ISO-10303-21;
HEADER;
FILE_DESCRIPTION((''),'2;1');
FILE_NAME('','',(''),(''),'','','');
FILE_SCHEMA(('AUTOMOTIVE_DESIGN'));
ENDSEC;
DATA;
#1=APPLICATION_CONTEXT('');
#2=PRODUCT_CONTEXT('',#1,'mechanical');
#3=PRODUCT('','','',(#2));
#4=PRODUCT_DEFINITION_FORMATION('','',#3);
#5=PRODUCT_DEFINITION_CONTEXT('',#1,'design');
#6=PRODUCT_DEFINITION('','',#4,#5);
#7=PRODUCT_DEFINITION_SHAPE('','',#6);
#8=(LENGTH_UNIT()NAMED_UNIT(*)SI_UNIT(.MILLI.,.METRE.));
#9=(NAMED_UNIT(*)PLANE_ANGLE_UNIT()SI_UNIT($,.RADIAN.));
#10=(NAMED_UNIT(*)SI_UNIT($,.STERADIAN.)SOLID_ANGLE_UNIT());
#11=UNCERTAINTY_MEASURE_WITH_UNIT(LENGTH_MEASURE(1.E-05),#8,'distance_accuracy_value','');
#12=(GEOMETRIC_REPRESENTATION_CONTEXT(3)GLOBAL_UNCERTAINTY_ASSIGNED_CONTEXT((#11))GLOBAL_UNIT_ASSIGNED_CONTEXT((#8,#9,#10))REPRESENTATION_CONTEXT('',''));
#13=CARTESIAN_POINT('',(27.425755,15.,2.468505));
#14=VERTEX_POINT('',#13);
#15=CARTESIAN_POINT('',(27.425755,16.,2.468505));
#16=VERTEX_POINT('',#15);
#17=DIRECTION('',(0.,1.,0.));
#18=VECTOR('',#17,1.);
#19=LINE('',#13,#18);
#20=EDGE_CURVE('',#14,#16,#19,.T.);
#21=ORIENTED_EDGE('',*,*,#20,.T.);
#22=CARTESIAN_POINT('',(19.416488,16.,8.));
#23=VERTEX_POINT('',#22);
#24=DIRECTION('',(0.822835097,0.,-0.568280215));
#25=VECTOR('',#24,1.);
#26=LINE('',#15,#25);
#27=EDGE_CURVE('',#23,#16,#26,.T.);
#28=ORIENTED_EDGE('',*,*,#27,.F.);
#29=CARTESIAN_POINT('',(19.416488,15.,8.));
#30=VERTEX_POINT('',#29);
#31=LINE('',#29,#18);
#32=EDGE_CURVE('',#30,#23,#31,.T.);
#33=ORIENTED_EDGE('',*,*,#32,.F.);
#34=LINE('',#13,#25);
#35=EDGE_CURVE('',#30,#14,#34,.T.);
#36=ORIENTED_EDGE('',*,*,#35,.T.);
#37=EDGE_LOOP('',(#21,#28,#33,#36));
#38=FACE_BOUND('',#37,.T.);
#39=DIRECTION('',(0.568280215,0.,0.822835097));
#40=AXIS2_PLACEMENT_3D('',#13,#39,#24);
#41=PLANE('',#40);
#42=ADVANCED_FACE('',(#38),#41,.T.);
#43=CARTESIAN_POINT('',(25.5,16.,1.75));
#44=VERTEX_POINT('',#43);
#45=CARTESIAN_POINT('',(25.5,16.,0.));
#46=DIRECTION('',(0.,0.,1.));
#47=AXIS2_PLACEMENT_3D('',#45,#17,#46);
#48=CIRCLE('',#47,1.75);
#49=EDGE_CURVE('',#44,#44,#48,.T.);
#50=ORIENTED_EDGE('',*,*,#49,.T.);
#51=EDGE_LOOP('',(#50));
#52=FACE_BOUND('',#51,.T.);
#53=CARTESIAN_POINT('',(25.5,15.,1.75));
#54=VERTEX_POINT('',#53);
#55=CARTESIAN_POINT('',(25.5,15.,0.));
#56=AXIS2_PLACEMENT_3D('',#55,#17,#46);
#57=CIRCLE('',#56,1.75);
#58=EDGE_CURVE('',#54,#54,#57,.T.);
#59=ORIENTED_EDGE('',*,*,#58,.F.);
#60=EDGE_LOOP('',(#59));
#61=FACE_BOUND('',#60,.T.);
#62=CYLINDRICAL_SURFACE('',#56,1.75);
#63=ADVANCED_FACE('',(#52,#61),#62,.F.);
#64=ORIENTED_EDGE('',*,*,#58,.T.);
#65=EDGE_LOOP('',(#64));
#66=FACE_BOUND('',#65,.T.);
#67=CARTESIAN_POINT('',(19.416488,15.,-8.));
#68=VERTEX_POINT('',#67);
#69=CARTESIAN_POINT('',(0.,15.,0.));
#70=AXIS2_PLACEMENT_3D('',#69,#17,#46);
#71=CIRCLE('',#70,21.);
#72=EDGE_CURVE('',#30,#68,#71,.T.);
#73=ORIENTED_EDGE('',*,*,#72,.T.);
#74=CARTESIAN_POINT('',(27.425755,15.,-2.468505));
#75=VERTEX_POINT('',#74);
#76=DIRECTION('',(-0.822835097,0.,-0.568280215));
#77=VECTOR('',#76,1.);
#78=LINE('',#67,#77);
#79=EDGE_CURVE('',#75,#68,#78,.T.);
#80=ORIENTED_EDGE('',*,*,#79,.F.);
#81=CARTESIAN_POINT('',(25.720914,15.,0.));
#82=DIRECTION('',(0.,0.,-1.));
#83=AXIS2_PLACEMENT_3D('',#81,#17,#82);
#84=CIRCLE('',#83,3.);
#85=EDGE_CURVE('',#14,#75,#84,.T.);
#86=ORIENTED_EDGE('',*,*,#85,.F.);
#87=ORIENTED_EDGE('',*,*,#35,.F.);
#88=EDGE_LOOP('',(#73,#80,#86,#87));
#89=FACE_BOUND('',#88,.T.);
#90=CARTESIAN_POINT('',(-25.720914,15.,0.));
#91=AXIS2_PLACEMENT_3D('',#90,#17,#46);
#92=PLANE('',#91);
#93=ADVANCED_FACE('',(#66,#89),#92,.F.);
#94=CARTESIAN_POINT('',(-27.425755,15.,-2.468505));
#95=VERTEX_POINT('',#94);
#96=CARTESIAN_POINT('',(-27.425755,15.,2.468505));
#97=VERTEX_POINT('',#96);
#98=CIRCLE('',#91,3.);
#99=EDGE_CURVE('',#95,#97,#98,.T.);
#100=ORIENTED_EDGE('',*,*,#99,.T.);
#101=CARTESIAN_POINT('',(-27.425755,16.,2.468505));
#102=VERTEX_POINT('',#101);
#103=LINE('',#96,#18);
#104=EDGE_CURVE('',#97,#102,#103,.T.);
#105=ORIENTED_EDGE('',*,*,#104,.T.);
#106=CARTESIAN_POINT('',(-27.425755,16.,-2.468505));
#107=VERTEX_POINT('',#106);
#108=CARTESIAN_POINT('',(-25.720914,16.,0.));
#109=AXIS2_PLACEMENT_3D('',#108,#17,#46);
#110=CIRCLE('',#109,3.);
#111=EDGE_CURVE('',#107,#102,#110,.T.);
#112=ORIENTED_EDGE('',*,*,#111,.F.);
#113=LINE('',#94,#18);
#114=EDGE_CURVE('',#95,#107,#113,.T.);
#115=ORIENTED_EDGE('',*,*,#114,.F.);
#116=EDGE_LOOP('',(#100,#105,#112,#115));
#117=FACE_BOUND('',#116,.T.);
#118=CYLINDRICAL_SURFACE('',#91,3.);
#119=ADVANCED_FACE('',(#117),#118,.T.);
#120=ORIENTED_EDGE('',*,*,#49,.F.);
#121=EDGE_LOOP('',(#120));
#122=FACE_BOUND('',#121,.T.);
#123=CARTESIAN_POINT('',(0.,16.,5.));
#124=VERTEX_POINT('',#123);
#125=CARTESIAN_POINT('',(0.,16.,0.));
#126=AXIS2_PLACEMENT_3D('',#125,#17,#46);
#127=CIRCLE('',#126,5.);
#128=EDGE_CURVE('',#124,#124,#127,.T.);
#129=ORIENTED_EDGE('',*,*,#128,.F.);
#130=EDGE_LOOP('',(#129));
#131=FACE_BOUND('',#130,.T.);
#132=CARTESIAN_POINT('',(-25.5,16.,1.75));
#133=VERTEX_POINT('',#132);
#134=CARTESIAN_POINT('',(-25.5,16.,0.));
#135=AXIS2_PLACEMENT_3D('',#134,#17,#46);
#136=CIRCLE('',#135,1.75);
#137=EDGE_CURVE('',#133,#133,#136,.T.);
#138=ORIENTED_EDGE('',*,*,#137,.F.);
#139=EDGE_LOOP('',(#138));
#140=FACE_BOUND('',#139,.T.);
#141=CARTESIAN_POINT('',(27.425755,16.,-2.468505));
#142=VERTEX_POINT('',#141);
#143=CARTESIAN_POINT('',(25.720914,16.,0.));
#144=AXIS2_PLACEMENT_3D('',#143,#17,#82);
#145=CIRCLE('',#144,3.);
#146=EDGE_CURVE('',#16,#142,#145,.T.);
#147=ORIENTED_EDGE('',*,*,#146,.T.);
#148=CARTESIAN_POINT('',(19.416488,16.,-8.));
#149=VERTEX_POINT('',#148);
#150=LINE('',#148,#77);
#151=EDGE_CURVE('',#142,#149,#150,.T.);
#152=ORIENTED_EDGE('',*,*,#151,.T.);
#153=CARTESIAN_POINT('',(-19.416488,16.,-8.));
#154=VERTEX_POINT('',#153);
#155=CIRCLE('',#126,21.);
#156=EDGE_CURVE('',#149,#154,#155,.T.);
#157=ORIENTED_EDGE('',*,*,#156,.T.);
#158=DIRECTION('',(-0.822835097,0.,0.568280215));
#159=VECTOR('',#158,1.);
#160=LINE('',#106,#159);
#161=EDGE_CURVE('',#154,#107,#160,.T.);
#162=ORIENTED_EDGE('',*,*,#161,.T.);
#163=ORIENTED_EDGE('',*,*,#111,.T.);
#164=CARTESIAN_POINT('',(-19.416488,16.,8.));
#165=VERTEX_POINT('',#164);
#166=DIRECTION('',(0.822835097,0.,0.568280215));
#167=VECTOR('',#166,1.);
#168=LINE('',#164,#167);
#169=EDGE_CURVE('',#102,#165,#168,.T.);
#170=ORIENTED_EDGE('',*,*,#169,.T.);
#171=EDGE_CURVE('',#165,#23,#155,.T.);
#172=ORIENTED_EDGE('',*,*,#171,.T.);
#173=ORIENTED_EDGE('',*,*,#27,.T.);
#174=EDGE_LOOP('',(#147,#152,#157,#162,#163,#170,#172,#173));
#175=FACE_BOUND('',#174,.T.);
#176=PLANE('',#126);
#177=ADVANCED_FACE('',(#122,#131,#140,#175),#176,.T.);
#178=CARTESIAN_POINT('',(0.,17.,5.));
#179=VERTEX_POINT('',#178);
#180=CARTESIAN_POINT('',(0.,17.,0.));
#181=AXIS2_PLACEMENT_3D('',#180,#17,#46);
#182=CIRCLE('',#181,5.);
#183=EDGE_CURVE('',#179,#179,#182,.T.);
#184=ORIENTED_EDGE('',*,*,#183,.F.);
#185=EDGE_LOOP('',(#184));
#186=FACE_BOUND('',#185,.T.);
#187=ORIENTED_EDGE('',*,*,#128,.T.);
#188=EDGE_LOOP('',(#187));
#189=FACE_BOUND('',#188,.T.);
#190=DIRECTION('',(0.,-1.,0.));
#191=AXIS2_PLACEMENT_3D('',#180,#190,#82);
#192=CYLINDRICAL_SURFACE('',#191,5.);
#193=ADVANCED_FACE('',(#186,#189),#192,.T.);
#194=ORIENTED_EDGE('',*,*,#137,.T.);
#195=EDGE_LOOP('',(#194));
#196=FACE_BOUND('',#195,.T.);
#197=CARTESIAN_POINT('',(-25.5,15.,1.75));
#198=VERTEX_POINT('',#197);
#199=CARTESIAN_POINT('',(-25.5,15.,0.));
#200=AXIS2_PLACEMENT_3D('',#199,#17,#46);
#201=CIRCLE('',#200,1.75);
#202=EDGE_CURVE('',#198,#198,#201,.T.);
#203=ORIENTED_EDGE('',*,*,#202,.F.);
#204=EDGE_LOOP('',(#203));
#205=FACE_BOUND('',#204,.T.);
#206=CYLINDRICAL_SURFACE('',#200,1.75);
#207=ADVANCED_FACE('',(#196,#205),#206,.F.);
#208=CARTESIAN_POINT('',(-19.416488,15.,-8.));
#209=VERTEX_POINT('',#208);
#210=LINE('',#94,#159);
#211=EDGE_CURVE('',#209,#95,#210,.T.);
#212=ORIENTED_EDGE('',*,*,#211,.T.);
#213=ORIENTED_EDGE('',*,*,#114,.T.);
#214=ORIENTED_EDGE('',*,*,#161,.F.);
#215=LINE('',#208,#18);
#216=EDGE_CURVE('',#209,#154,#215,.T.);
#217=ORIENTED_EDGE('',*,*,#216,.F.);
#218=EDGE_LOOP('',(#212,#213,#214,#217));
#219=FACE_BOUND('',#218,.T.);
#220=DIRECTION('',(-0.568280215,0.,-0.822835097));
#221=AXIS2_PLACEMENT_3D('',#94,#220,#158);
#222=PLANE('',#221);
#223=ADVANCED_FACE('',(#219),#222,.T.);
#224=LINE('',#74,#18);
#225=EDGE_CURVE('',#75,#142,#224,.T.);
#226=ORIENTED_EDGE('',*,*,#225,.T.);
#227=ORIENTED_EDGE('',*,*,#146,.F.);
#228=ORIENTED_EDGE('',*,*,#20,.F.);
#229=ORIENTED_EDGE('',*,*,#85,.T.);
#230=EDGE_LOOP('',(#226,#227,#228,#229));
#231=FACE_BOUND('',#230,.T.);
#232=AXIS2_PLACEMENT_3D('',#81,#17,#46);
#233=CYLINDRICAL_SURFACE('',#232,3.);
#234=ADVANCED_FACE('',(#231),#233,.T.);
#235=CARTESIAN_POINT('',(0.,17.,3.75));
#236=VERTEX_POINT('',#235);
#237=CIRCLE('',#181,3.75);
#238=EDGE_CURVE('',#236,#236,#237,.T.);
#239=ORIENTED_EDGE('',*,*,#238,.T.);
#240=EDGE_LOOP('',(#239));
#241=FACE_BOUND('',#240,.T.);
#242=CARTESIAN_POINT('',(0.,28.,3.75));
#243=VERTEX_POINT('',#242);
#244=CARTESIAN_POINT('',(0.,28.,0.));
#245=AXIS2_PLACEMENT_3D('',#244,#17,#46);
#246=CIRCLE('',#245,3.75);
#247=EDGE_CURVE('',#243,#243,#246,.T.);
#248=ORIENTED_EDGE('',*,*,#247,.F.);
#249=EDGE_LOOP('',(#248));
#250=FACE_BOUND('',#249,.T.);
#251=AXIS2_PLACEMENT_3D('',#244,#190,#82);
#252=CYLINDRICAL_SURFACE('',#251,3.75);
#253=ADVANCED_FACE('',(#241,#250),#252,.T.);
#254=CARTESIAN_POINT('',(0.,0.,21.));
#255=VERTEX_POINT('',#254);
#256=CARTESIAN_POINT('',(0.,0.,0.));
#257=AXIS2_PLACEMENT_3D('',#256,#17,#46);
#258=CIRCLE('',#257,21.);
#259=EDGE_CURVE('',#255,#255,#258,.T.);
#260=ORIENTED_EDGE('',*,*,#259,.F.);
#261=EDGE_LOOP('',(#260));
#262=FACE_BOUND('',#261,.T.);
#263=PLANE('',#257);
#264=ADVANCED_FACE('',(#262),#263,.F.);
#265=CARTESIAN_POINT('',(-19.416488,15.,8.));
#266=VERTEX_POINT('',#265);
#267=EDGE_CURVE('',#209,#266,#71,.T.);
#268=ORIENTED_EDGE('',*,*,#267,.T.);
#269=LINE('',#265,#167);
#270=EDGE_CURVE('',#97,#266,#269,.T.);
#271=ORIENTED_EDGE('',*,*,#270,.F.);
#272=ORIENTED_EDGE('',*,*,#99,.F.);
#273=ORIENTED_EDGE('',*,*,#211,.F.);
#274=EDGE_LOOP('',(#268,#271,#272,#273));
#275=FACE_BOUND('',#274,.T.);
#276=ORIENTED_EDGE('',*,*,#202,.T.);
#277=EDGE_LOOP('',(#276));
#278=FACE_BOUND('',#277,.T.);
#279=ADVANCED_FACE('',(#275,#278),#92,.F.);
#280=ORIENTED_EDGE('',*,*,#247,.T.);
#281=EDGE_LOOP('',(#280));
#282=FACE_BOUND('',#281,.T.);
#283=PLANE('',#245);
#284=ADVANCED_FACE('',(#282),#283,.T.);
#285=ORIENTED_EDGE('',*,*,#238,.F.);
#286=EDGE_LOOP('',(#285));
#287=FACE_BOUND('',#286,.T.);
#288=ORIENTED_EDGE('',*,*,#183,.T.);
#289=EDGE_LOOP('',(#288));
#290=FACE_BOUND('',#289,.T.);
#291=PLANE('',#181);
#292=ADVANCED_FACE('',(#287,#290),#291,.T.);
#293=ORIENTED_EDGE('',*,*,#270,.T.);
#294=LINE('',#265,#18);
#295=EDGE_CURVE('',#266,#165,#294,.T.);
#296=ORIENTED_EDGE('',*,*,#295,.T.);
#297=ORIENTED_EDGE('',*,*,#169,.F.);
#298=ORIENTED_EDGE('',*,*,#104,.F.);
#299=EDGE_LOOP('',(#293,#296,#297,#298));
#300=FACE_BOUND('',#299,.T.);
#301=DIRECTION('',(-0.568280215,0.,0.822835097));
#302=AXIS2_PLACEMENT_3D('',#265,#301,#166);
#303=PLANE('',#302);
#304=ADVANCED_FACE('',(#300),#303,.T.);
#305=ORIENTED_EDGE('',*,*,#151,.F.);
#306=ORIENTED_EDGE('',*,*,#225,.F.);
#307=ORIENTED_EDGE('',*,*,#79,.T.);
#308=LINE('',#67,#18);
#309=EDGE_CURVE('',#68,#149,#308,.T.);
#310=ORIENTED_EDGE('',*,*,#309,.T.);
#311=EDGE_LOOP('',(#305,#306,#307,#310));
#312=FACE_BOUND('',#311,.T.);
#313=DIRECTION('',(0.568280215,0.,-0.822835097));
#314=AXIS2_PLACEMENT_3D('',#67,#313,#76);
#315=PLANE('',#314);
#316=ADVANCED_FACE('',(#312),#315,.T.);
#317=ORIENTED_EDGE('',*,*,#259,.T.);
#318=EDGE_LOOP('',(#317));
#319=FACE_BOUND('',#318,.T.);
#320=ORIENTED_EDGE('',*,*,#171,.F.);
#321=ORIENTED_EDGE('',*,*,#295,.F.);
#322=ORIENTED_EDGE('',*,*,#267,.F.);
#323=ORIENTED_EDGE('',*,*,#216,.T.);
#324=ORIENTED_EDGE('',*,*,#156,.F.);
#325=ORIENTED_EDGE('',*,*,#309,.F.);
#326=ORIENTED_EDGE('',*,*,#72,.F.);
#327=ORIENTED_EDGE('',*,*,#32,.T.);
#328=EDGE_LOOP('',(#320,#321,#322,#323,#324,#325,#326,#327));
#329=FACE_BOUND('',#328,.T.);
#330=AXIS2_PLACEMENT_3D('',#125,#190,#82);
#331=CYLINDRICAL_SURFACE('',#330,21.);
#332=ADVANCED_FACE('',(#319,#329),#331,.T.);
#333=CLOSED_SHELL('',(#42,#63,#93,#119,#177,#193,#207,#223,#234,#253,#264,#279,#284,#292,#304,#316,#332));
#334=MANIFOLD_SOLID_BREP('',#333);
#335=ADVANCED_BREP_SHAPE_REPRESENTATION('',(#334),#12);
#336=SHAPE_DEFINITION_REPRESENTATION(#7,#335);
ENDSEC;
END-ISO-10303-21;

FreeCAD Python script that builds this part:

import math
import FreeCAD as App
import Part
import Sketcher

V = App.Vector

doc = App.newDocument("Part")
body = doc.addObject("PartDesign::Body", "Body")

sketch1 = body.newObject("Sketcher::SketchObject", "Sketch")
sketch1.AttachmentSupport = (doc.getObject("XZ_Plane"), [""])
sketch1.MapMode = "FlatFace"
sketch1.addGeometry(Part.Circle(V(0, 0, 0), V(0, 0, 1), 21), False)
sketch1.addConstraint([
    Sketcher.Constraint("Coincident", 0, 3, -1, 1),
    Sketcher.Constraint("Diameter", 0, 42.0),
])
pad1 = body.newObject("PartDesign::Pad", "Pad")
pad1.Profile = sketch1
pad1.Length = 16
pad1.Reversed = True

sketch2 = body.newObject("Sketcher::SketchObject", "Sketch001")
sketch2.AttachmentSupport = (doc.getObject("XZ_Plane"), [""])
sketch2.MapMode = "FlatFace"
sketch2.AttachmentOffset = App.Placement(V(0, 0, -16), App.Rotation())
sketch2.addGeometry([
    Part.LineSegment(V(-27.4, 2.5, 0), V(-19.4, 8, 0)),
    Part.LineSegment(V(-19.4, 8, 0), V(19.4, 8, 0)),
    Part.LineSegment(V(19.4, 8, 0), V(27.4, 2.5, 0)),
    Part.ArcOfCircle(Part.Circle(V(25.7, 0, 0), V(0, 0, 1), 3), math.radians(-55), math.radians(55)),
    Part.LineSegment(V(27.4, -2.5, 0), V(19.4, -8, 0)),
    Part.LineSegment(V(19.4, -8, 0), V(-19.4, -8, 0)),
    Part.LineSegment(V(-19.4, -8, 0), V(-27.4, -2.5, 0)),
    Part.ArcOfCircle(Part.Circle(V(-25.7, 0, 0), V(0, 0, 1), 3), math.radians(125), math.radians(235)),
    Part.Circle(V(-25.5, 0, 0), V(0, 0, 1), 1.8),
    Part.Circle(V(25.5, 0, 0), V(0, 0, 1), 1.8),
], False)
sketch2.addConstraint([
    Sketcher.Constraint("Coincident", 0, 2, 1, 1),
    Sketcher.Constraint("Coincident", 1, 2, 2, 1),
    Sketcher.Constraint("Tangent", 2, 2, 3, 2),
    Sketcher.Constraint("Tangent", 3, 1, 4, 1),
    Sketcher.Constraint("Coincident", 4, 2, 5, 1),
    Sketcher.Constraint("Coincident", 5, 2, 6, 1),
    Sketcher.Constraint("Tangent", 6, 2, 7, 2),
    Sketcher.Constraint("Tangent", 7, 1, 0, 1),
    Sketcher.Constraint("Horizontal", 1),
    Sketcher.Constraint("Horizontal", 5),
    Sketcher.Constraint("Equal", 3, 7),
    Sketcher.Constraint("Equal", 8, 9),
    Sketcher.Constraint("Symmetric", 3, 3, 7, 3, -1, 1),
    Sketcher.Constraint("Symmetric", 8, 3, 9, 3, -1, 1),
    Sketcher.Constraint("Symmetric", 0, 2, 4, 2, -1, 1),
    Sketcher.Constraint("Symmetric", 3, 1, 6, 2, -2),
    Sketcher.Constraint("PointOnObject", 8, 3, -1),
    Sketcher.Constraint("Parallel", 2, 6),
    Sketcher.Constraint("Radius", 3, 3.0),
    Sketcher.Constraint("Diameter", 8, 3.5),
    Sketcher.Constraint("DistanceY", -1, 1, 0, 2, 8.0),
    Sketcher.Constraint("DistanceX", 8, 3, 9, 3, 51.0),
    Sketcher.Constraint("DistanceX", 1, 1, 1, 2, 38.832976),
    Sketcher.Constraint("DistanceX", 7, 3, 3, 3, 51.441828),
])
pad2 = body.newObject("PartDesign::Pad", "Pad001")
pad2.Profile = sketch2
pad2.Length = 1

sketch3 = body.newObject("Sketcher::SketchObject", "Sketch002")
sketch3.AttachmentSupport = (doc.getObject("XZ_Plane"), [""])
sketch3.MapMode = "FlatFace"
sketch3.AttachmentOffset = App.Placement(V(0, 0, -16), App.Rotation())
sketch3.addGeometry(Part.Circle(V(0, 0, 0), V(0, 0, 1), 5), False)
sketch3.addConstraint([
    Sketcher.Constraint("Coincident", 0, 3, -1, 1),
    Sketcher.Constraint("Diameter", 0, 10.0),
])
pad3 = body.newObject("PartDesign::Pad", "Pad002")
pad3.Profile = sketch3
pad3.Length = 1
pad3.Reversed = True

sketch4 = body.newObject("Sketcher::SketchObject", "Sketch003")
sketch4.AttachmentSupport = (doc.getObject("XZ_Plane"), [""])
sketch4.MapMode = "FlatFace"
sketch4.AttachmentOffset = App.Placement(V(0, 0, -17), App.Rotation())
sketch4.addGeometry(Part.Circle(V(0, 0, 0), V(0, 0, 1), 3.8), False)
sketch4.addConstraint([
    Sketcher.Constraint("Coincident", 0, 3, -1, 1),
    Sketcher.Constraint("Diameter", 0, 7.5),
])
pad4 = body.newObject("PartDesign::Pad", "Pad003")
pad4.Profile = sketch4
pad4.Length = 11
pad4.Reversed = True

doc.recompute()
